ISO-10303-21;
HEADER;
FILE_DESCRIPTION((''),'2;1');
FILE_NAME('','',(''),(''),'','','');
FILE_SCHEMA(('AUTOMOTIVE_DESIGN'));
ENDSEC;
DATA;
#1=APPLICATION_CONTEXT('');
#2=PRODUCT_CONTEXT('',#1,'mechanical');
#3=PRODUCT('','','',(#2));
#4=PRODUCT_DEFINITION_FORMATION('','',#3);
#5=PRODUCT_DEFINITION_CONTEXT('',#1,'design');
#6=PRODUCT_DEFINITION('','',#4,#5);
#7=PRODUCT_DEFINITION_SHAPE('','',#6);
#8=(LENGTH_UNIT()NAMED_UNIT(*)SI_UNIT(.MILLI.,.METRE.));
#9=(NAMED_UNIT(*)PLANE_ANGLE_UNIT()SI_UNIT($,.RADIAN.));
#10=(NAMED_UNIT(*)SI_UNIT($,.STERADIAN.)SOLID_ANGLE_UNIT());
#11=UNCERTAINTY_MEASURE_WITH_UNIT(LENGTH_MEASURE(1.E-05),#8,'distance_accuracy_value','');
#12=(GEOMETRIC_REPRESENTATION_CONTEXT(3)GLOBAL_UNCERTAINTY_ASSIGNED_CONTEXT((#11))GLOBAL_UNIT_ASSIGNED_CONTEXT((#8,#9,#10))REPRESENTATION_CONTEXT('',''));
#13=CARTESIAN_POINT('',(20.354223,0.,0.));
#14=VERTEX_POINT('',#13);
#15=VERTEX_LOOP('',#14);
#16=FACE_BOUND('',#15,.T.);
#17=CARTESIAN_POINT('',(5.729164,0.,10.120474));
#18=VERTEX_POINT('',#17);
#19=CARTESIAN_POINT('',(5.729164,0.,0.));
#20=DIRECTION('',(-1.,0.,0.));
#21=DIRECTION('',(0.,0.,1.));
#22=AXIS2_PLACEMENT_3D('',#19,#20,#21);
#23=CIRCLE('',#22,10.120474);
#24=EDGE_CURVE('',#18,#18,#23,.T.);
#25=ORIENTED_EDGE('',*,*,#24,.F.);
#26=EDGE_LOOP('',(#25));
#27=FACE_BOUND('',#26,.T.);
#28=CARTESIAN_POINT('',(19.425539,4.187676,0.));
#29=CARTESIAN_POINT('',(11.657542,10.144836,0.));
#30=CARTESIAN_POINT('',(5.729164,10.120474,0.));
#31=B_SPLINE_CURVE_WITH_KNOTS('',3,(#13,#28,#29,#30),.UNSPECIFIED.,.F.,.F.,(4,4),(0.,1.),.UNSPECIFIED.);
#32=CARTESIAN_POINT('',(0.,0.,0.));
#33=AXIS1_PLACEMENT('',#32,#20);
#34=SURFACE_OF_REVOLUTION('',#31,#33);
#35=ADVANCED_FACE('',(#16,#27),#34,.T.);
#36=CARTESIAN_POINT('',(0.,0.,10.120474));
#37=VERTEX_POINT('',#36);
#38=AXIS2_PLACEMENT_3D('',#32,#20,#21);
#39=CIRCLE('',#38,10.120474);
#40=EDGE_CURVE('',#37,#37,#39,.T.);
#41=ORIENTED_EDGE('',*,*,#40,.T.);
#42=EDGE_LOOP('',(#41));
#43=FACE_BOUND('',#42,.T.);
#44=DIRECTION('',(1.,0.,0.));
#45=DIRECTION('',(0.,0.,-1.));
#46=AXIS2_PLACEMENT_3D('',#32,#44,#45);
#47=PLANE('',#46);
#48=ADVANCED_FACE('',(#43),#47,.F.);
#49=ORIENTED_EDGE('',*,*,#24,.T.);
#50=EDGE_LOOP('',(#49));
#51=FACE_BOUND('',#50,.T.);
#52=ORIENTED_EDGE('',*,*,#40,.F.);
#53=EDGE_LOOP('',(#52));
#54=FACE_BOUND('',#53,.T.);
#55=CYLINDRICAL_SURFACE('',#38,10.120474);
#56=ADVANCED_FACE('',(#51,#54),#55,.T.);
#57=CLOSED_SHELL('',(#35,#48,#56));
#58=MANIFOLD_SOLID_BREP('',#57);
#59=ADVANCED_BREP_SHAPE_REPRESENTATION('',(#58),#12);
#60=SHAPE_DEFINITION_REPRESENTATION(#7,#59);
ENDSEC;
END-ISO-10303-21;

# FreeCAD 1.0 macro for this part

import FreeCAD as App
import Part
import Sketcher
from FreeCAD import Vector

doc = App.newDocument("Part")
body = doc.addObject("PartDesign::Body", "Body")

# Sketch on XY plane
sketch1 = body.newObject("Sketcher::SketchObject", "Sketch")
sketch1.AttachmentSupport = (doc.getObject("XY_Plane"), [""])
sketch1.MapMode = "FlatFace"
sketch1.addGeometry([
    Part.LineSegment(Vector(0, 10.120474, 0), Vector(0, 0, 0)),
    Part.LineSegment(Vector(0, 0, 0), Vector(20.354223, 0, 0)),
    Part.BSplineCurve([Vector(5.729164, 10.120474, 0), Vector(11.657542, 10.144836, 0), Vector(19.425539, 4.187676, 0), Vector(20.354223, 0, 0)], [4, 4], [0, 1], False, 3, [1, 1, 1, 1], False),
    Part.LineSegment(Vector(5.729164, 10.120474, 0), Vector(0, 10.120474, 0)),
], False)
sketch1.addConstraint([
    Sketcher.Constraint("Block", 2),
    Sketcher.Constraint("Coincident", 0, 2, 1, 1),
    Sketcher.Constraint("Coincident", 1, 2, 2, 2),
    Sketcher.Constraint("Coincident", 2, 1, 3, 1),
    Sketcher.Constraint("Coincident", 3, 2, 0, 1),
    Sketcher.Constraint("Vertical", 0),
    Sketcher.Constraint("Horizontal", 1),
    Sketcher.Constraint("Horizontal", 3),
    Sketcher.Constraint("PointOnObject", 3, 2, -2),
])
revolution = body.newObject("PartDesign::Revolution", "Revolution")
revolution.Profile = sketch1
revolution.ReferenceAxis = (sketch1, ["H_Axis"])
revolution.Angle = 360

doc.recompute()
